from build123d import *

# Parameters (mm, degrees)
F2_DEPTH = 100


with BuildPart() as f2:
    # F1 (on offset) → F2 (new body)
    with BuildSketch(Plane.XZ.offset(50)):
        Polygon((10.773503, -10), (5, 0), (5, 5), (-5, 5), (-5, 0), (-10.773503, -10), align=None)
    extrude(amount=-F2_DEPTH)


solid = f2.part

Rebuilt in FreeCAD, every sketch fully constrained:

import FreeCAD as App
import Part
import Sketcher
Q = App.Units.Quantity

doc = App.newDocument("Part")
body = doc.addObject("PartDesign::Body", "Body")

# Sketch on XZ plane
sketch1 = body.newObject("Sketcher::SketchObject", "Sketch")
sketch1.AttachmentSupport = (doc.getObject("XZ_Plane"), [""])
sketch1.MapMode = "FlatFace"
sketch1.AttachmentOffset = App.Placement(App.Vector(0, 0, 50), App.Rotation())
sketch1.addGeometry([
    Part.LineSegment(App.Vector(11, -10, 0), App.Vector(5, 0, 0)),  # 0
    Part.LineSegment(App.Vector(5, 0, 0), App.Vector(5, 5, 0)),  # 1
    Part.LineSegment(App.Vector(5, 5, 0), App.Vector(-5, 5, 0)),  # 2
    Part.LineSegment(App.Vector(-5, 5, 0), App.Vector(-5, 0, 0)),  # 3
    Part.LineSegment(App.Vector(-5, 0, 0), App.Vector(-11, -10, 0)),  # 4
    Part.LineSegment(App.Vector(-11, -10, 0), App.Vector(11, -10, 0)),  # 5
], False)
sketch1.addConstraint([
    Sketcher.Constraint("Coincident", 0, 2, 1, 1),
    Sketcher.Constraint("Coincident", 1, 2, 2, 1),
    Sketcher.Constraint("Coincident", 2, 2, 3, 1),
    Sketcher.Constraint("Coincident", 3, 2, 4, 1),
    Sketcher.Constraint("Coincident", 4, 2, 5, 1),
    Sketcher.Constraint("Coincident", 5, 2, 0, 1),
    Sketcher.Constraint("Vertical", 1),
    Sketcher.Constraint("Horizontal", 2),
    Sketcher.Constraint("Vertical", 3),
    Sketcher.Constraint("Horizontal", 5),
    Sketcher.Constraint("Symmetric", 0, 2, 3, 2, -1, 1),
    Sketcher.Constraint("PointOnObject", 0, 2, -1),
    Sketcher.Constraint("Equal", 0, 4),
    Sketcher.Constraint("DistanceX", 2, 2, 2, 1, 10.0),
    Sketcher.Constraint("DistanceY", 1, 1, 1, 2, 5.0),
    Sketcher.Constraint("Angle", 0, Q("120.000001 deg")),
    Sketcher.Constraint("DistanceY", 4, 2, -1, 1, 10.0),
])
pad1 = body.newObject("PartDesign::Pad", "Pad")
pad1.Profile = sketch1
pad1.Length = 100
pad1.Reversed = True

doc.recompute()
